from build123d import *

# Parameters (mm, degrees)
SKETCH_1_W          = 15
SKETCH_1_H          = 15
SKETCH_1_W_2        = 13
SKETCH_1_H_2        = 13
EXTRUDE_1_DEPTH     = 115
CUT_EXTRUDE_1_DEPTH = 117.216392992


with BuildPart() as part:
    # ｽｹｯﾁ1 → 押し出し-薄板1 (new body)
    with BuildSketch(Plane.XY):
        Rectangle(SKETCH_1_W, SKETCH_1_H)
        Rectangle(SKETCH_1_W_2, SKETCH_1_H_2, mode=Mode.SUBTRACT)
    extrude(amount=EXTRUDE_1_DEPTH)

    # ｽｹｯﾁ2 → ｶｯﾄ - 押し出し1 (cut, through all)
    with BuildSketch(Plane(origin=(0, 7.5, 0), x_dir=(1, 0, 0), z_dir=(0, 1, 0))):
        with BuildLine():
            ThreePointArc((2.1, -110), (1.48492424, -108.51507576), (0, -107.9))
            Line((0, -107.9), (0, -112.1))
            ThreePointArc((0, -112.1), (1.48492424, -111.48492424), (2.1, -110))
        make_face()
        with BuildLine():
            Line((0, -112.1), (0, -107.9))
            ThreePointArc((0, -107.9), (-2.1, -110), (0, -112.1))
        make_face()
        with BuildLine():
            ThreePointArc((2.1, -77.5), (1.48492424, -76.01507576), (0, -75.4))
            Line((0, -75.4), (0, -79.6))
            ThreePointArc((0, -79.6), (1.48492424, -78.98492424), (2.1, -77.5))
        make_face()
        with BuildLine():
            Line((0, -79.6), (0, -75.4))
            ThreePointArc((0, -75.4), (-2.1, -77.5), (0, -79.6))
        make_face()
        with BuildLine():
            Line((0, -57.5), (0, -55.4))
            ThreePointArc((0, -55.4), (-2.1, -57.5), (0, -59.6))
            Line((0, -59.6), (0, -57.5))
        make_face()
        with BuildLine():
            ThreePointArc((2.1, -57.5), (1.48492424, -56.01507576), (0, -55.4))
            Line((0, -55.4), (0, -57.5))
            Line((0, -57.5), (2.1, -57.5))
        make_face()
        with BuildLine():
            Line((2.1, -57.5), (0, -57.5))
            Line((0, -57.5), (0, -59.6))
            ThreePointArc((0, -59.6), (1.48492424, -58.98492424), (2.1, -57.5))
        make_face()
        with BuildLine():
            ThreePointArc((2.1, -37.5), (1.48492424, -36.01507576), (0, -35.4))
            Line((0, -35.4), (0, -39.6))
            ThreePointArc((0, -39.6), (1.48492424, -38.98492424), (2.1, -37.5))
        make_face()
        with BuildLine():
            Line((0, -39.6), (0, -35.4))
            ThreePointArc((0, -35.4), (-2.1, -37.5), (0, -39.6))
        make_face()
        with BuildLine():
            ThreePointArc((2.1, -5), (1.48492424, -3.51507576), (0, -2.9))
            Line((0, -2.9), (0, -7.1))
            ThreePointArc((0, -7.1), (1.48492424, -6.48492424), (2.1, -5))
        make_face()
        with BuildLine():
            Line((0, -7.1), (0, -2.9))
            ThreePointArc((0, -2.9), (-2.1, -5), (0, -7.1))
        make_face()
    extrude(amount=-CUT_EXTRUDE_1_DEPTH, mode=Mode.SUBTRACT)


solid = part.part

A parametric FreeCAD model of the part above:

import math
import FreeCAD as App
import Part
import Sketcher
from FreeCAD import Vector
Q = App.Units.Quantity


def add_polygon(sketch, points):
    """Adds a closed chain of lines whose ends are joined by coincident constraints."""
    first, n = sketch.GeometryCount, len(points)
    for a, b in zip(points, points[1:] + points[:1]):
        sketch.addGeometry(Part.LineSegment(App.Vector(*a, 0), App.Vector(*b, 0)), False)
    for i in range(n):
        sketch.addConstraint(Sketcher.Constraint("Coincident", first + i, 2, first + (i + 1) % n, 1))

doc = App.newDocument("Part")
body = doc.addObject("PartDesign::Body", "Body")

# Sketch on XY plane
sketch1 = body.newObject("Sketcher::SketchObject", "Sketch")
sketch1.AttachmentSupport = (doc.getObject("XY_Plane"), [""])
sketch1.MapMode = "FlatFace"
add_polygon(sketch1, [(-8, 8), (-8, -8), (8, -8), (8, 8)])  # lines 0-3
add_polygon(sketch1, [(6, -6), (-6, -6), (-6, 6), (6, 6)])  # lines 4-7
sketch1.addConstraint([
    Sketcher.Constraint("Vertical", 0),
    Sketcher.Constraint("Horizontal", 1),
    Sketcher.Constraint("Vertical", 2),
    Sketcher.Constraint("Horizontal", 3),
    Sketcher.Constraint("Horizontal", 4),
    Sketcher.Constraint("Vertical", 5),
    Sketcher.Constraint("Horizontal", 6),
    Sketcher.Constraint("Vertical", 7),
    Sketcher.Constraint("Symmetric", 0, 2, 2, 2, -1, 1),
    Sketcher.Constraint("Symmetric", 4, 2, 6, 2, -1, 1),
    Sketcher.Constraint("Equal", 3, 0),
    Sketcher.Constraint("Equal", 6, 5),
    Sketcher.Constraint("DistanceX", 1, 1, 1, 2, Q("15 mm")),
    Sketcher.Constraint("DistanceX", 4, 2, 4, 1, Q("13 mm")),
])
pad1 = body.newObject("PartDesign::Pad", "Pad")
pad1.Profile = sketch1
pad1.Length = 115

# Sketch on XZ plane
sketch2 = body.newObject("Sketcher::SketchObject", "Sketch001")
sketch2.AttachmentSupport = (doc.getObject("XZ_Plane"), [""])
sketch2.MapMode = "FlatFace"
sketch2.AttachmentOffset = App.Placement(Vector(0, 0, -7.5), App.Rotation())
sketch2.addGeometry([
    Part.ArcOfCircle(Part.Circle(Vector(0, 110, 0), Vector(0, 0, 1), 2.1), math.radians(-90), math.radians(0)),  # 0
    Part.ArcOfCircle(Part.Circle(Vector(0, 110, 0), Vector(0, 0, 1), 2.1), math.radians(90), math.radians(270)),  # 1
    Part.ArcOfCircle(Part.Circle(Vector(0, 110, 0), Vector(0, 0, 1), 2.1), math.radians(0), math.radians(90)),  # 2
    Part.ArcOfCircle(Part.Circle(Vector(0, 77.5, 0), Vector(0, 0, 1), 2.1), math.radians(-90), math.radians(0)),  # 3
    Part.ArcOfCircle(Part.Circle(Vector(0, 77.5, 0), Vector(0, 0, 1), 2.1), math.radians(90), math.radians(270)),  # 4
    Part.ArcOfCircle(Part.Circle(Vector(0, 77.5, 0), Vector(0, 0, 1), 2.1), math.radians(0), math.radians(90)),  # 5
    Part.ArcOfCircle(Part.Circle(Vector(0, 57.5, 0), Vector(0, 0, 1), 2.1), math.radians(0), math.radians(90)),  # 6
    Part.ArcOfCircle(Part.Circle(Vector(0, 57.5, 0), Vector(0, 0, 1), 2.1), math.radians(-90), math.radians(0)),  # 7
    Part.ArcOfCircle(Part.Circle(Vector(0, 57.5, 0), Vector(0, 0, 1), 2.1), math.radians(90), math.radians(270)),  # 8
    Part.ArcOfCircle(Part.Circle(Vector(0, 37.5, 0), Vector(0, 0, 1), 2.1), math.radians(-90), math.radians(0)),  # 9
    Part.ArcOfCircle(Part.Circle(Vector(0, 37.5, 0), Vector(0, 0, 1), 2.1), math.radians(90), math.radians(270)),  # 10
    Part.ArcOfCircle(Part.Circle(Vector(0, 37.5, 0), Vector(0, 0, 1), 2.1), math.radians(0), math.radians(90)),  # 11
    Part.ArcOfCircle(Part.Circle(Vector(0, 5, 0), Vector(0, 0, 1), 2.1), math.radians(-90), math.radians(0)),  # 12
    Part.ArcOfCircle(Part.Circle(Vector(0, 5, 0), Vector(0, 0, 1), 2.1), math.radians(90), math.radians(270)),  # 13
    Part.ArcOfCircle(Part.Circle(Vector(0, 5, 0), Vector(0, 0, 1), 2.1), math.radians(0), math.radians(90)),  # 14
], False)
sketch2.addConstraint([
    Sketcher.Constraint("Tangent", 0, 1, 1, 2),
    Sketcher.Constraint("Tangent", 1, 1, 2, 2),
    Sketcher.Constraint("Tangent", 2, 1, 0, 2),
    Sketcher.Constraint("Tangent", 3, 1, 4, 2),
    Sketcher.Constraint("Tangent", 4, 1, 5, 2),
    Sketcher.Constraint("Tangent", 5, 1, 3, 2),
    Sketcher.Constraint("Tangent", 6, 1, 7, 2),
    Sketcher.Constraint("Tangent", 7, 1, 8, 2),
    Sketcher.Constraint("Tangent", 8, 1, 6, 2),
    Sketcher.Constraint("Tangent", 9, 1, 10, 2),
    Sketcher.Constraint("Tangent", 10, 1, 11, 2),
    Sketcher.Constraint("Tangent", 11, 1, 9, 2),
    Sketcher.Constraint("Tangent", 12, 1, 13, 2),
    Sketcher.Constraint("Tangent", 13, 1, 14, 2),
    Sketcher.Constraint("Tangent", 14, 1, 12, 2),
    Sketcher.Constraint("Equal", 2, 3),
    Sketcher.Constraint("Equal", 5, 6),
    Sketcher.Constraint("Equal", 8, 9),
    Sketcher.Constraint("Equal", 11, 12),
    Sketcher.Constraint("PointOnObject", 0, 3, -2),
    Sketcher.Constraint("PointOnObject", 3, 3, -2),
    Sketcher.Constraint("PointOnObject", 6, 3, -2),
    Sketcher.Constraint("PointOnObject", 9, 3, -2),
    Sketcher.Constraint("PointOnObject", 12, 3, -2),
    Sketcher.Constraint("PointOnObject", 0, 1, -2),
    Sketcher.Constraint("PointOnObject", 1, 1, -2),
    Sketcher.Constraint("PointOnObject", 3, 1, -2),
    Sketcher.Constraint("PointOnObject", 4, 1, -2),
    Sketcher.Constraint("PointOnObject", 7, 1, -2),
    Sketcher.Constraint("PointOnObject", 8, 1, -2),
    Sketcher.Constraint("PointOnObject", 9, 1, -2),
    Sketcher.Constraint("PointOnObject", 10, 1, -2),
    Sketcher.Constraint("PointOnObject", 12, 1, -2),
    Sketcher.Constraint("PointOnObject", 13, 1, -2),
    Sketcher.Constraint("Horizontal", 1, 3, 2, 1),
    Sketcher.Constraint("Horizontal", 4, 3, 5, 1),
    Sketcher.Constraint("Horizontal", 8, 3, 6, 1),
    Sketcher.Constraint("Horizontal", 10, 3, 11, 1),
    Sketcher.Constraint("Horizontal", 13, 3, 14, 1),
    Sketcher.Constraint("Radius", 0, Q("2.1 mm")),
    Sketcher.Constraint("DistanceY", -1, 1, 0, 3, Q("110 mm")),
    Sketcher.Constraint("DistanceY", -1, 1, 12, 3, Q("5 mm")),
    Sketcher.Constraint("DistanceY", 6, 3, 5, 3, Q("20 mm")),
    Sketcher.Constraint("DistanceY", 9, 3, 6, 3, Q("20 mm")),
    Sketcher.Constraint("DistanceY", -1, 1, 3, 3, Q("77.5 mm")),
])
pocket1 = body.newObject("PartDesign::Pocket", "Pocket")
pocket1.Profile = sketch2
pocket1.Type = "ThroughAll"
pocket1.Reversed = True

doc.recompute()
